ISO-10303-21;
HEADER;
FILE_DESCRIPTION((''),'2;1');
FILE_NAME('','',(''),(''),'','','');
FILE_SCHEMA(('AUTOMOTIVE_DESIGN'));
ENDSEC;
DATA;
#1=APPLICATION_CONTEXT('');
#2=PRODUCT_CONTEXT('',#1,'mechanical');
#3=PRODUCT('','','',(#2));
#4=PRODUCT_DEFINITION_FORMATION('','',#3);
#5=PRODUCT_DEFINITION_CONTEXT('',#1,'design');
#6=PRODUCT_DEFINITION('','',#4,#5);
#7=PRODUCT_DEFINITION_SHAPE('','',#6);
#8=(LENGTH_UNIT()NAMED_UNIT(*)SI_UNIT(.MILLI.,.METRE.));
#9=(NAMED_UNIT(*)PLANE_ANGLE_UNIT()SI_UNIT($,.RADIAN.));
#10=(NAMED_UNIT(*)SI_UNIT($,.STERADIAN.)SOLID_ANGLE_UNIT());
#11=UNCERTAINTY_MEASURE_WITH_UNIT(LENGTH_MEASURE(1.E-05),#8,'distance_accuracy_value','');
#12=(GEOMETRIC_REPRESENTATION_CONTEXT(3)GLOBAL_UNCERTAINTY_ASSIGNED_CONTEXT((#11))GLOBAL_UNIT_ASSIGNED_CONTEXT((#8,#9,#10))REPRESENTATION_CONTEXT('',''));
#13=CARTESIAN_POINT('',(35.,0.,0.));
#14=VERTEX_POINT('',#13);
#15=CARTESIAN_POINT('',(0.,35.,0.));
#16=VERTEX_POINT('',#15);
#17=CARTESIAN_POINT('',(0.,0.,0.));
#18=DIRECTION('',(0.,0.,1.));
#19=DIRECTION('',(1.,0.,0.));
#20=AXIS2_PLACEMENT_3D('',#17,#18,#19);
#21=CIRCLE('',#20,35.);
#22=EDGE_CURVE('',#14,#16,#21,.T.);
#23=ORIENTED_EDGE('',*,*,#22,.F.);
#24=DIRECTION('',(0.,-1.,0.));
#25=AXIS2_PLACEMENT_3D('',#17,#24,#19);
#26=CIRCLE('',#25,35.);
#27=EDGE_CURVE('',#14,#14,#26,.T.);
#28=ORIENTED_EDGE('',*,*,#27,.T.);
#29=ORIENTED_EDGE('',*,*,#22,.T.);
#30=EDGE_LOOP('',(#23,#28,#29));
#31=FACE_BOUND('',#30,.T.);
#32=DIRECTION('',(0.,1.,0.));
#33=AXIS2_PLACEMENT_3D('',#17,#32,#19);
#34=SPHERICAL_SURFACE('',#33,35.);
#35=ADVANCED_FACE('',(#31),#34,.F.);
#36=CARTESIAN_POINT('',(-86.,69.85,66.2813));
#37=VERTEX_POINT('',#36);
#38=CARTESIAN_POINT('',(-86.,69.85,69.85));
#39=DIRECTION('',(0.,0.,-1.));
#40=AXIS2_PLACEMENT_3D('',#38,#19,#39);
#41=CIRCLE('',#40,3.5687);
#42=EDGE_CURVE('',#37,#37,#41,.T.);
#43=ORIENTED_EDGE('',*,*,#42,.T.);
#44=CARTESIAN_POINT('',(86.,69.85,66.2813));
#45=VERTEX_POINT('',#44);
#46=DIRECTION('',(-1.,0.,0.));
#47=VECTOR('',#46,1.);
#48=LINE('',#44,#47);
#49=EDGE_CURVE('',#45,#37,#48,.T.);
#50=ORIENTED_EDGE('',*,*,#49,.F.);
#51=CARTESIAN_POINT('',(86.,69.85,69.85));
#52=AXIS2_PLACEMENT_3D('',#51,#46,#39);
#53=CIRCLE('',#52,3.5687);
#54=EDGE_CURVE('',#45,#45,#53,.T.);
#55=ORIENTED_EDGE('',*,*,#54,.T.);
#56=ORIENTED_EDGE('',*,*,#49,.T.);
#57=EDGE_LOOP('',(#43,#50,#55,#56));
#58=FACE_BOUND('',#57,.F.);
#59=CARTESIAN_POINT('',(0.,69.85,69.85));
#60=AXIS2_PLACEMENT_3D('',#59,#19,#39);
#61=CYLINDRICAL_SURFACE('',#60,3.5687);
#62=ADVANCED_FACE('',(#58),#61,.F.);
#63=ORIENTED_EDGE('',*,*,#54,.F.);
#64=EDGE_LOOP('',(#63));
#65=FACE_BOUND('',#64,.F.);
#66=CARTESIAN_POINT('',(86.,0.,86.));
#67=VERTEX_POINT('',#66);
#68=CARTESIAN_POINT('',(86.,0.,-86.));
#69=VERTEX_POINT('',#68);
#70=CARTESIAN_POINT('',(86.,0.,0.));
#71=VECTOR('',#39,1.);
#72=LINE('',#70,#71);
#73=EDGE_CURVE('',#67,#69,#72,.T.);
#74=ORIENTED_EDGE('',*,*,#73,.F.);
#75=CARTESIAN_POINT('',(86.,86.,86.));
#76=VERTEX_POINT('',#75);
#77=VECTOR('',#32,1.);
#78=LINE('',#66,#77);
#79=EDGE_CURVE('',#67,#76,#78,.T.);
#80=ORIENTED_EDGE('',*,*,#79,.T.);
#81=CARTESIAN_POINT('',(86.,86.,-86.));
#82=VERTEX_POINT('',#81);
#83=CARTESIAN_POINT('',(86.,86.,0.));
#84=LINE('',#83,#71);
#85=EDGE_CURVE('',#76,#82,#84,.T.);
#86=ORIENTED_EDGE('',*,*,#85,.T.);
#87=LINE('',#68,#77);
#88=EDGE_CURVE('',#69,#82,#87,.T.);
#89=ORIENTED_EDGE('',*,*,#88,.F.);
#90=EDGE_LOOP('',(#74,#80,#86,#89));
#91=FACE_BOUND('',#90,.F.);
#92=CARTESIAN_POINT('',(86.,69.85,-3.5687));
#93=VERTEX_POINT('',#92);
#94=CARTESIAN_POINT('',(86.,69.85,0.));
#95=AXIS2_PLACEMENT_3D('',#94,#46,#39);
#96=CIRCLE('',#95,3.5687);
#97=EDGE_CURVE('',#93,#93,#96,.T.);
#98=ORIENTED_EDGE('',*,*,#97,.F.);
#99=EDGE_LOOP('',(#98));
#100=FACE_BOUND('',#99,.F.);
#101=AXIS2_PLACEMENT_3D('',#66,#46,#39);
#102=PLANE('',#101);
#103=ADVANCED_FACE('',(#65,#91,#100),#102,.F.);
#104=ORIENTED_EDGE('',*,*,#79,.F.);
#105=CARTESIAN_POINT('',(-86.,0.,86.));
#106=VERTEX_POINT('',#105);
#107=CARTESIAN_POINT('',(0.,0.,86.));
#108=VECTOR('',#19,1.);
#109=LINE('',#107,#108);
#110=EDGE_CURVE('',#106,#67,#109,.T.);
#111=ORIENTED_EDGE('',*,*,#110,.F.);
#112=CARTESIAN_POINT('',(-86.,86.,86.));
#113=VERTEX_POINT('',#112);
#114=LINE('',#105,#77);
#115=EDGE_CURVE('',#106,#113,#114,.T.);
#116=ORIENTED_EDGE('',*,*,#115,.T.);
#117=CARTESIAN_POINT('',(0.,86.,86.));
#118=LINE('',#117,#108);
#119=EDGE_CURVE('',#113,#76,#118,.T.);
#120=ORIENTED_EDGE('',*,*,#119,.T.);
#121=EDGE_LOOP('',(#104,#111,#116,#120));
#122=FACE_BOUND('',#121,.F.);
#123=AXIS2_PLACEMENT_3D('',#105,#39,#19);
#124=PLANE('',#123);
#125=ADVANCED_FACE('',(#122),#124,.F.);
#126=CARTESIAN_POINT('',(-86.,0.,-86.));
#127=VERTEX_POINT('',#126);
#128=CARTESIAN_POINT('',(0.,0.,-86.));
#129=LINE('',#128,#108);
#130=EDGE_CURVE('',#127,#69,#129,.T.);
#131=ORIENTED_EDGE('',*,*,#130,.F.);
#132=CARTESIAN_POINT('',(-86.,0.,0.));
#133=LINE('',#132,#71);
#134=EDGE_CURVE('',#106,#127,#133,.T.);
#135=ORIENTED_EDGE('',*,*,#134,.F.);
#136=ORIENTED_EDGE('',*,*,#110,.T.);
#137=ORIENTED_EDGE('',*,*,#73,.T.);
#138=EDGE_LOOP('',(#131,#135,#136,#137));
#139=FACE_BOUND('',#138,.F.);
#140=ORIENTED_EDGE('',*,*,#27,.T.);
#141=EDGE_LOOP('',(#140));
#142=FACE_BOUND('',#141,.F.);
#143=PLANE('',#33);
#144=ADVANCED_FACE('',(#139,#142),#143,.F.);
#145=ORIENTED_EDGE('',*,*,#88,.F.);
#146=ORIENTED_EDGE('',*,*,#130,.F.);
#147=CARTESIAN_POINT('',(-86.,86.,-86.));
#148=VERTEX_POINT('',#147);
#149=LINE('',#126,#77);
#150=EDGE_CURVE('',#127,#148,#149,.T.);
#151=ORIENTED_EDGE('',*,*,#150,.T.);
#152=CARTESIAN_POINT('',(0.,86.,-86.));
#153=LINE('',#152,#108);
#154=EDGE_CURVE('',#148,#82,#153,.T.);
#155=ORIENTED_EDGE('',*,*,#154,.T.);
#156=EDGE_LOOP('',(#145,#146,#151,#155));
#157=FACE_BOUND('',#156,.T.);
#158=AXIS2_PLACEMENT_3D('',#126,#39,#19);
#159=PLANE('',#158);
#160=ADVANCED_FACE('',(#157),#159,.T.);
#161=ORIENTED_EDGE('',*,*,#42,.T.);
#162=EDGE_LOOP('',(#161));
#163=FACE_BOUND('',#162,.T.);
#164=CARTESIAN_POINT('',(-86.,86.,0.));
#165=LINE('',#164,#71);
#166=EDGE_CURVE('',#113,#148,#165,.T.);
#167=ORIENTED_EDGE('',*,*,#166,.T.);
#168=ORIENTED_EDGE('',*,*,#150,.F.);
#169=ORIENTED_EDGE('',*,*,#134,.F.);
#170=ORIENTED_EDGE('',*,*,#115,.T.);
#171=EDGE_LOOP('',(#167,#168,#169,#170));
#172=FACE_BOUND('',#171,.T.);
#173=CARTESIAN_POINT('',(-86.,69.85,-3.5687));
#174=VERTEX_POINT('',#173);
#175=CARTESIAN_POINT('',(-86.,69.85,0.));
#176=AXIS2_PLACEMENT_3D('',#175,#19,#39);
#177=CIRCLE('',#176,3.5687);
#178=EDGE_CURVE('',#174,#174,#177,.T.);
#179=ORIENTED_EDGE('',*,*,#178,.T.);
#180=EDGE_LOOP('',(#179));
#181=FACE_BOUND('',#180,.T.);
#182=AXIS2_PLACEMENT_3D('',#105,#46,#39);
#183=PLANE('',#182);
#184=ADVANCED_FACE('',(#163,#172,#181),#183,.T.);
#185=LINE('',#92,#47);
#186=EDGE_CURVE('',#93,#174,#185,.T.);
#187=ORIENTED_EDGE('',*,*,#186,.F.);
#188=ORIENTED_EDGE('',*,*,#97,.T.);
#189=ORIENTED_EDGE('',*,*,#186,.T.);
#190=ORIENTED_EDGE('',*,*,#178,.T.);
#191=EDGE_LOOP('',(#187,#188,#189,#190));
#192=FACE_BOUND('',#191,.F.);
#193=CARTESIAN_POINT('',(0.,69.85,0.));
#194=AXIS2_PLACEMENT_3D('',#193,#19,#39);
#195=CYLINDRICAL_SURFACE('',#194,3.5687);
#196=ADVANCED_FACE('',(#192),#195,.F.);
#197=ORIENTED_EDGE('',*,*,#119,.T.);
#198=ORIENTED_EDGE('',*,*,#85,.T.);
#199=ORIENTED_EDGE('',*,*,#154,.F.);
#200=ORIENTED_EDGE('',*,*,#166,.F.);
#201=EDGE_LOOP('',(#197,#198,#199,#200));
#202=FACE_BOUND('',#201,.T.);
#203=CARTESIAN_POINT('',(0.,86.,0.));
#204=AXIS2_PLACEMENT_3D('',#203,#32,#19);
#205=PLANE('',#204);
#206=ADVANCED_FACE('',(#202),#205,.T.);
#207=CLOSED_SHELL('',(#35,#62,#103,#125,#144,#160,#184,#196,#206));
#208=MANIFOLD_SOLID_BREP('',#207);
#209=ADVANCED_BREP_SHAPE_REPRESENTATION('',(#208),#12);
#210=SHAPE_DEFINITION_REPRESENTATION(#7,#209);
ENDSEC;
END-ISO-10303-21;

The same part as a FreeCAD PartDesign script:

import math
import FreeCAD as App
import Part
import Sketcher
Q = App.Units.Quantity

doc = App.newDocument("Part")
body = doc.addObject("PartDesign::Body", "Body")

sketch1 = body.newObject("Sketcher::SketchObject", "Sketch")
sketch1.AttachmentSupport = (doc.getObject("XZ_Plane"), [""])
sketch1.MapMode = "FlatFace"
sketch1.addGeometry(Part.LineSegment(App.Vector(-86, -86, 0), App.Vector(-86, 86, 0)), False)
sketch1.addGeometry(Part.LineSegment(App.Vector(-86, 86, 0), App.Vector(86, 86, 0)), False)
sketch1.addGeometry(Part.LineSegment(App.Vector(86, 86, 0), App.Vector(86, -86, 0)), False)
sketch1.addGeometry(Part.LineSegment(App.Vector(86, -86, 0), App.Vector(-86, -86, 0)), False)
sketch1.addConstraint(Sketcher.Constraint("Coincident", 0, 2, 1, 1))
sketch1.addConstraint(Sketcher.Constraint("Coincident", 1, 2, 2, 1))
sketch1.addConstraint(Sketcher.Constraint("Coincident", 2, 2, 3, 1))
sketch1.addConstraint(Sketcher.Constraint("Coincident", 3, 2, 0, 1))
sketch1.addConstraint(Sketcher.Constraint("Vertical", 0))
sketch1.addConstraint(Sketcher.Constraint("Horizontal", 1))
sketch1.addConstraint(Sketcher.Constraint("Vertical", 2))
sketch1.addConstraint(Sketcher.Constraint("Horizontal", 3))
sketch1.addConstraint(Sketcher.Constraint("Symmetric", 0, 2, 2, 2, -1, 1))
sketch1.addConstraint(Sketcher.Constraint("Equal", 3, 0))
sketch1.addConstraint(Sketcher.Constraint("DistanceX", 1, 1, 1, 2, Q("172 mm")))
pad1 = body.newObject("PartDesign::Pad", "Pad")
pad1.Profile = sketch1
pad1.Length = 86
pad1.Reversed = True

sketch2 = body.newObject("Sketcher::SketchObject", "Sketch001")
sketch2.AttachmentSupport = (doc.getObject("XY_Plane"), [""])
sketch2.MapMode = "FlatFace"
sketch2.addGeometry(Part.LineSegment(App.Vector(0, 35, 0), App.Vector(0, 0, 0)), False)
sketch2.addGeometry(Part.LineSegment(App.Vector(0, 0, 0), App.Vector(35, 0, 0)), False)
sketch2.addGeometry(Part.ArcOfCircle(Part.Circle(App.Vector(0, 0, 0), App.Vector(0, 0, 1), 35), math.radians(0), math.radians(90)), False)
sketch2.addConstraint(Sketcher.Constraint("Coincident", 0, 2, 1, 1))
sketch2.addConstraint(Sketcher.Constraint("Coincident", 1, 2, 2, 1))
sketch2.addConstraint(Sketcher.Constraint("Coincident", 2, 2, 0, 1))
sketch2.addConstraint(Sketcher.Constraint("Vertical", 0))
sketch2.addConstraint(Sketcher.Constraint("Horizontal", 1))
sketch2.addConstraint(Sketcher.Constraint("Coincident", 2, 3, -1, 1))
sketch2.addConstraint(Sketcher.Constraint("Coincident", 0, 2, -1, 1))
sketch2.addConstraint(Sketcher.Constraint("Radius", 2, Q("35 mm")))
groove = body.newObject("PartDesign::Groove", "Groove")
groove.Profile = sketch2
groove.ReferenceAxis = (sketch2, ["V_Axis"])
groove.Angle = 360

sketch3 = body.newObject("Sketcher::SketchObject", "Sketch002")
sketch3.AttachmentSupport = (doc.getObject("YZ_Plane"), [""])
sketch3.MapMode = "FlatFace"
sketch3.addGeometry(Part.Circle(App.Vector(69.8, 69.8, 0), App.Vector(0, 0, 1), 3.6), False)
sketch3.addGeometry(Part.Circle(App.Vector(69.8, 0, 0), App.Vector(0, 0, 1), 3.6), False)
sketch3.addConstraint(Sketcher.Constraint("Equal", 0, 1))
sketch3.addConstraint(Sketcher.Constraint("PointOnObject", 1, 3, -1))
sketch3.addConstraint(Sketcher.Constraint("Vertical", 0, 3, 1, 3))
sketch3.addConstraint(Sketcher.Constraint("Diameter", 0, Q("7.1374 mm")))
sketch3.addConstraint(Sketcher.Constraint("DistanceX", -1, 1, 0, 3, Q("69.85 mm")))
sketch3.addConstraint(Sketcher.Constraint("DistanceY", -1, 1, 0, 3, Q("69.85 mm")))
pocket1 = body.newObject("PartDesign::Pocket", "Pocket")
pocket1.Profile = sketch3
pocket1.Type = "ThroughAll"
pocket1.Midplane = True

doc.recompute()
